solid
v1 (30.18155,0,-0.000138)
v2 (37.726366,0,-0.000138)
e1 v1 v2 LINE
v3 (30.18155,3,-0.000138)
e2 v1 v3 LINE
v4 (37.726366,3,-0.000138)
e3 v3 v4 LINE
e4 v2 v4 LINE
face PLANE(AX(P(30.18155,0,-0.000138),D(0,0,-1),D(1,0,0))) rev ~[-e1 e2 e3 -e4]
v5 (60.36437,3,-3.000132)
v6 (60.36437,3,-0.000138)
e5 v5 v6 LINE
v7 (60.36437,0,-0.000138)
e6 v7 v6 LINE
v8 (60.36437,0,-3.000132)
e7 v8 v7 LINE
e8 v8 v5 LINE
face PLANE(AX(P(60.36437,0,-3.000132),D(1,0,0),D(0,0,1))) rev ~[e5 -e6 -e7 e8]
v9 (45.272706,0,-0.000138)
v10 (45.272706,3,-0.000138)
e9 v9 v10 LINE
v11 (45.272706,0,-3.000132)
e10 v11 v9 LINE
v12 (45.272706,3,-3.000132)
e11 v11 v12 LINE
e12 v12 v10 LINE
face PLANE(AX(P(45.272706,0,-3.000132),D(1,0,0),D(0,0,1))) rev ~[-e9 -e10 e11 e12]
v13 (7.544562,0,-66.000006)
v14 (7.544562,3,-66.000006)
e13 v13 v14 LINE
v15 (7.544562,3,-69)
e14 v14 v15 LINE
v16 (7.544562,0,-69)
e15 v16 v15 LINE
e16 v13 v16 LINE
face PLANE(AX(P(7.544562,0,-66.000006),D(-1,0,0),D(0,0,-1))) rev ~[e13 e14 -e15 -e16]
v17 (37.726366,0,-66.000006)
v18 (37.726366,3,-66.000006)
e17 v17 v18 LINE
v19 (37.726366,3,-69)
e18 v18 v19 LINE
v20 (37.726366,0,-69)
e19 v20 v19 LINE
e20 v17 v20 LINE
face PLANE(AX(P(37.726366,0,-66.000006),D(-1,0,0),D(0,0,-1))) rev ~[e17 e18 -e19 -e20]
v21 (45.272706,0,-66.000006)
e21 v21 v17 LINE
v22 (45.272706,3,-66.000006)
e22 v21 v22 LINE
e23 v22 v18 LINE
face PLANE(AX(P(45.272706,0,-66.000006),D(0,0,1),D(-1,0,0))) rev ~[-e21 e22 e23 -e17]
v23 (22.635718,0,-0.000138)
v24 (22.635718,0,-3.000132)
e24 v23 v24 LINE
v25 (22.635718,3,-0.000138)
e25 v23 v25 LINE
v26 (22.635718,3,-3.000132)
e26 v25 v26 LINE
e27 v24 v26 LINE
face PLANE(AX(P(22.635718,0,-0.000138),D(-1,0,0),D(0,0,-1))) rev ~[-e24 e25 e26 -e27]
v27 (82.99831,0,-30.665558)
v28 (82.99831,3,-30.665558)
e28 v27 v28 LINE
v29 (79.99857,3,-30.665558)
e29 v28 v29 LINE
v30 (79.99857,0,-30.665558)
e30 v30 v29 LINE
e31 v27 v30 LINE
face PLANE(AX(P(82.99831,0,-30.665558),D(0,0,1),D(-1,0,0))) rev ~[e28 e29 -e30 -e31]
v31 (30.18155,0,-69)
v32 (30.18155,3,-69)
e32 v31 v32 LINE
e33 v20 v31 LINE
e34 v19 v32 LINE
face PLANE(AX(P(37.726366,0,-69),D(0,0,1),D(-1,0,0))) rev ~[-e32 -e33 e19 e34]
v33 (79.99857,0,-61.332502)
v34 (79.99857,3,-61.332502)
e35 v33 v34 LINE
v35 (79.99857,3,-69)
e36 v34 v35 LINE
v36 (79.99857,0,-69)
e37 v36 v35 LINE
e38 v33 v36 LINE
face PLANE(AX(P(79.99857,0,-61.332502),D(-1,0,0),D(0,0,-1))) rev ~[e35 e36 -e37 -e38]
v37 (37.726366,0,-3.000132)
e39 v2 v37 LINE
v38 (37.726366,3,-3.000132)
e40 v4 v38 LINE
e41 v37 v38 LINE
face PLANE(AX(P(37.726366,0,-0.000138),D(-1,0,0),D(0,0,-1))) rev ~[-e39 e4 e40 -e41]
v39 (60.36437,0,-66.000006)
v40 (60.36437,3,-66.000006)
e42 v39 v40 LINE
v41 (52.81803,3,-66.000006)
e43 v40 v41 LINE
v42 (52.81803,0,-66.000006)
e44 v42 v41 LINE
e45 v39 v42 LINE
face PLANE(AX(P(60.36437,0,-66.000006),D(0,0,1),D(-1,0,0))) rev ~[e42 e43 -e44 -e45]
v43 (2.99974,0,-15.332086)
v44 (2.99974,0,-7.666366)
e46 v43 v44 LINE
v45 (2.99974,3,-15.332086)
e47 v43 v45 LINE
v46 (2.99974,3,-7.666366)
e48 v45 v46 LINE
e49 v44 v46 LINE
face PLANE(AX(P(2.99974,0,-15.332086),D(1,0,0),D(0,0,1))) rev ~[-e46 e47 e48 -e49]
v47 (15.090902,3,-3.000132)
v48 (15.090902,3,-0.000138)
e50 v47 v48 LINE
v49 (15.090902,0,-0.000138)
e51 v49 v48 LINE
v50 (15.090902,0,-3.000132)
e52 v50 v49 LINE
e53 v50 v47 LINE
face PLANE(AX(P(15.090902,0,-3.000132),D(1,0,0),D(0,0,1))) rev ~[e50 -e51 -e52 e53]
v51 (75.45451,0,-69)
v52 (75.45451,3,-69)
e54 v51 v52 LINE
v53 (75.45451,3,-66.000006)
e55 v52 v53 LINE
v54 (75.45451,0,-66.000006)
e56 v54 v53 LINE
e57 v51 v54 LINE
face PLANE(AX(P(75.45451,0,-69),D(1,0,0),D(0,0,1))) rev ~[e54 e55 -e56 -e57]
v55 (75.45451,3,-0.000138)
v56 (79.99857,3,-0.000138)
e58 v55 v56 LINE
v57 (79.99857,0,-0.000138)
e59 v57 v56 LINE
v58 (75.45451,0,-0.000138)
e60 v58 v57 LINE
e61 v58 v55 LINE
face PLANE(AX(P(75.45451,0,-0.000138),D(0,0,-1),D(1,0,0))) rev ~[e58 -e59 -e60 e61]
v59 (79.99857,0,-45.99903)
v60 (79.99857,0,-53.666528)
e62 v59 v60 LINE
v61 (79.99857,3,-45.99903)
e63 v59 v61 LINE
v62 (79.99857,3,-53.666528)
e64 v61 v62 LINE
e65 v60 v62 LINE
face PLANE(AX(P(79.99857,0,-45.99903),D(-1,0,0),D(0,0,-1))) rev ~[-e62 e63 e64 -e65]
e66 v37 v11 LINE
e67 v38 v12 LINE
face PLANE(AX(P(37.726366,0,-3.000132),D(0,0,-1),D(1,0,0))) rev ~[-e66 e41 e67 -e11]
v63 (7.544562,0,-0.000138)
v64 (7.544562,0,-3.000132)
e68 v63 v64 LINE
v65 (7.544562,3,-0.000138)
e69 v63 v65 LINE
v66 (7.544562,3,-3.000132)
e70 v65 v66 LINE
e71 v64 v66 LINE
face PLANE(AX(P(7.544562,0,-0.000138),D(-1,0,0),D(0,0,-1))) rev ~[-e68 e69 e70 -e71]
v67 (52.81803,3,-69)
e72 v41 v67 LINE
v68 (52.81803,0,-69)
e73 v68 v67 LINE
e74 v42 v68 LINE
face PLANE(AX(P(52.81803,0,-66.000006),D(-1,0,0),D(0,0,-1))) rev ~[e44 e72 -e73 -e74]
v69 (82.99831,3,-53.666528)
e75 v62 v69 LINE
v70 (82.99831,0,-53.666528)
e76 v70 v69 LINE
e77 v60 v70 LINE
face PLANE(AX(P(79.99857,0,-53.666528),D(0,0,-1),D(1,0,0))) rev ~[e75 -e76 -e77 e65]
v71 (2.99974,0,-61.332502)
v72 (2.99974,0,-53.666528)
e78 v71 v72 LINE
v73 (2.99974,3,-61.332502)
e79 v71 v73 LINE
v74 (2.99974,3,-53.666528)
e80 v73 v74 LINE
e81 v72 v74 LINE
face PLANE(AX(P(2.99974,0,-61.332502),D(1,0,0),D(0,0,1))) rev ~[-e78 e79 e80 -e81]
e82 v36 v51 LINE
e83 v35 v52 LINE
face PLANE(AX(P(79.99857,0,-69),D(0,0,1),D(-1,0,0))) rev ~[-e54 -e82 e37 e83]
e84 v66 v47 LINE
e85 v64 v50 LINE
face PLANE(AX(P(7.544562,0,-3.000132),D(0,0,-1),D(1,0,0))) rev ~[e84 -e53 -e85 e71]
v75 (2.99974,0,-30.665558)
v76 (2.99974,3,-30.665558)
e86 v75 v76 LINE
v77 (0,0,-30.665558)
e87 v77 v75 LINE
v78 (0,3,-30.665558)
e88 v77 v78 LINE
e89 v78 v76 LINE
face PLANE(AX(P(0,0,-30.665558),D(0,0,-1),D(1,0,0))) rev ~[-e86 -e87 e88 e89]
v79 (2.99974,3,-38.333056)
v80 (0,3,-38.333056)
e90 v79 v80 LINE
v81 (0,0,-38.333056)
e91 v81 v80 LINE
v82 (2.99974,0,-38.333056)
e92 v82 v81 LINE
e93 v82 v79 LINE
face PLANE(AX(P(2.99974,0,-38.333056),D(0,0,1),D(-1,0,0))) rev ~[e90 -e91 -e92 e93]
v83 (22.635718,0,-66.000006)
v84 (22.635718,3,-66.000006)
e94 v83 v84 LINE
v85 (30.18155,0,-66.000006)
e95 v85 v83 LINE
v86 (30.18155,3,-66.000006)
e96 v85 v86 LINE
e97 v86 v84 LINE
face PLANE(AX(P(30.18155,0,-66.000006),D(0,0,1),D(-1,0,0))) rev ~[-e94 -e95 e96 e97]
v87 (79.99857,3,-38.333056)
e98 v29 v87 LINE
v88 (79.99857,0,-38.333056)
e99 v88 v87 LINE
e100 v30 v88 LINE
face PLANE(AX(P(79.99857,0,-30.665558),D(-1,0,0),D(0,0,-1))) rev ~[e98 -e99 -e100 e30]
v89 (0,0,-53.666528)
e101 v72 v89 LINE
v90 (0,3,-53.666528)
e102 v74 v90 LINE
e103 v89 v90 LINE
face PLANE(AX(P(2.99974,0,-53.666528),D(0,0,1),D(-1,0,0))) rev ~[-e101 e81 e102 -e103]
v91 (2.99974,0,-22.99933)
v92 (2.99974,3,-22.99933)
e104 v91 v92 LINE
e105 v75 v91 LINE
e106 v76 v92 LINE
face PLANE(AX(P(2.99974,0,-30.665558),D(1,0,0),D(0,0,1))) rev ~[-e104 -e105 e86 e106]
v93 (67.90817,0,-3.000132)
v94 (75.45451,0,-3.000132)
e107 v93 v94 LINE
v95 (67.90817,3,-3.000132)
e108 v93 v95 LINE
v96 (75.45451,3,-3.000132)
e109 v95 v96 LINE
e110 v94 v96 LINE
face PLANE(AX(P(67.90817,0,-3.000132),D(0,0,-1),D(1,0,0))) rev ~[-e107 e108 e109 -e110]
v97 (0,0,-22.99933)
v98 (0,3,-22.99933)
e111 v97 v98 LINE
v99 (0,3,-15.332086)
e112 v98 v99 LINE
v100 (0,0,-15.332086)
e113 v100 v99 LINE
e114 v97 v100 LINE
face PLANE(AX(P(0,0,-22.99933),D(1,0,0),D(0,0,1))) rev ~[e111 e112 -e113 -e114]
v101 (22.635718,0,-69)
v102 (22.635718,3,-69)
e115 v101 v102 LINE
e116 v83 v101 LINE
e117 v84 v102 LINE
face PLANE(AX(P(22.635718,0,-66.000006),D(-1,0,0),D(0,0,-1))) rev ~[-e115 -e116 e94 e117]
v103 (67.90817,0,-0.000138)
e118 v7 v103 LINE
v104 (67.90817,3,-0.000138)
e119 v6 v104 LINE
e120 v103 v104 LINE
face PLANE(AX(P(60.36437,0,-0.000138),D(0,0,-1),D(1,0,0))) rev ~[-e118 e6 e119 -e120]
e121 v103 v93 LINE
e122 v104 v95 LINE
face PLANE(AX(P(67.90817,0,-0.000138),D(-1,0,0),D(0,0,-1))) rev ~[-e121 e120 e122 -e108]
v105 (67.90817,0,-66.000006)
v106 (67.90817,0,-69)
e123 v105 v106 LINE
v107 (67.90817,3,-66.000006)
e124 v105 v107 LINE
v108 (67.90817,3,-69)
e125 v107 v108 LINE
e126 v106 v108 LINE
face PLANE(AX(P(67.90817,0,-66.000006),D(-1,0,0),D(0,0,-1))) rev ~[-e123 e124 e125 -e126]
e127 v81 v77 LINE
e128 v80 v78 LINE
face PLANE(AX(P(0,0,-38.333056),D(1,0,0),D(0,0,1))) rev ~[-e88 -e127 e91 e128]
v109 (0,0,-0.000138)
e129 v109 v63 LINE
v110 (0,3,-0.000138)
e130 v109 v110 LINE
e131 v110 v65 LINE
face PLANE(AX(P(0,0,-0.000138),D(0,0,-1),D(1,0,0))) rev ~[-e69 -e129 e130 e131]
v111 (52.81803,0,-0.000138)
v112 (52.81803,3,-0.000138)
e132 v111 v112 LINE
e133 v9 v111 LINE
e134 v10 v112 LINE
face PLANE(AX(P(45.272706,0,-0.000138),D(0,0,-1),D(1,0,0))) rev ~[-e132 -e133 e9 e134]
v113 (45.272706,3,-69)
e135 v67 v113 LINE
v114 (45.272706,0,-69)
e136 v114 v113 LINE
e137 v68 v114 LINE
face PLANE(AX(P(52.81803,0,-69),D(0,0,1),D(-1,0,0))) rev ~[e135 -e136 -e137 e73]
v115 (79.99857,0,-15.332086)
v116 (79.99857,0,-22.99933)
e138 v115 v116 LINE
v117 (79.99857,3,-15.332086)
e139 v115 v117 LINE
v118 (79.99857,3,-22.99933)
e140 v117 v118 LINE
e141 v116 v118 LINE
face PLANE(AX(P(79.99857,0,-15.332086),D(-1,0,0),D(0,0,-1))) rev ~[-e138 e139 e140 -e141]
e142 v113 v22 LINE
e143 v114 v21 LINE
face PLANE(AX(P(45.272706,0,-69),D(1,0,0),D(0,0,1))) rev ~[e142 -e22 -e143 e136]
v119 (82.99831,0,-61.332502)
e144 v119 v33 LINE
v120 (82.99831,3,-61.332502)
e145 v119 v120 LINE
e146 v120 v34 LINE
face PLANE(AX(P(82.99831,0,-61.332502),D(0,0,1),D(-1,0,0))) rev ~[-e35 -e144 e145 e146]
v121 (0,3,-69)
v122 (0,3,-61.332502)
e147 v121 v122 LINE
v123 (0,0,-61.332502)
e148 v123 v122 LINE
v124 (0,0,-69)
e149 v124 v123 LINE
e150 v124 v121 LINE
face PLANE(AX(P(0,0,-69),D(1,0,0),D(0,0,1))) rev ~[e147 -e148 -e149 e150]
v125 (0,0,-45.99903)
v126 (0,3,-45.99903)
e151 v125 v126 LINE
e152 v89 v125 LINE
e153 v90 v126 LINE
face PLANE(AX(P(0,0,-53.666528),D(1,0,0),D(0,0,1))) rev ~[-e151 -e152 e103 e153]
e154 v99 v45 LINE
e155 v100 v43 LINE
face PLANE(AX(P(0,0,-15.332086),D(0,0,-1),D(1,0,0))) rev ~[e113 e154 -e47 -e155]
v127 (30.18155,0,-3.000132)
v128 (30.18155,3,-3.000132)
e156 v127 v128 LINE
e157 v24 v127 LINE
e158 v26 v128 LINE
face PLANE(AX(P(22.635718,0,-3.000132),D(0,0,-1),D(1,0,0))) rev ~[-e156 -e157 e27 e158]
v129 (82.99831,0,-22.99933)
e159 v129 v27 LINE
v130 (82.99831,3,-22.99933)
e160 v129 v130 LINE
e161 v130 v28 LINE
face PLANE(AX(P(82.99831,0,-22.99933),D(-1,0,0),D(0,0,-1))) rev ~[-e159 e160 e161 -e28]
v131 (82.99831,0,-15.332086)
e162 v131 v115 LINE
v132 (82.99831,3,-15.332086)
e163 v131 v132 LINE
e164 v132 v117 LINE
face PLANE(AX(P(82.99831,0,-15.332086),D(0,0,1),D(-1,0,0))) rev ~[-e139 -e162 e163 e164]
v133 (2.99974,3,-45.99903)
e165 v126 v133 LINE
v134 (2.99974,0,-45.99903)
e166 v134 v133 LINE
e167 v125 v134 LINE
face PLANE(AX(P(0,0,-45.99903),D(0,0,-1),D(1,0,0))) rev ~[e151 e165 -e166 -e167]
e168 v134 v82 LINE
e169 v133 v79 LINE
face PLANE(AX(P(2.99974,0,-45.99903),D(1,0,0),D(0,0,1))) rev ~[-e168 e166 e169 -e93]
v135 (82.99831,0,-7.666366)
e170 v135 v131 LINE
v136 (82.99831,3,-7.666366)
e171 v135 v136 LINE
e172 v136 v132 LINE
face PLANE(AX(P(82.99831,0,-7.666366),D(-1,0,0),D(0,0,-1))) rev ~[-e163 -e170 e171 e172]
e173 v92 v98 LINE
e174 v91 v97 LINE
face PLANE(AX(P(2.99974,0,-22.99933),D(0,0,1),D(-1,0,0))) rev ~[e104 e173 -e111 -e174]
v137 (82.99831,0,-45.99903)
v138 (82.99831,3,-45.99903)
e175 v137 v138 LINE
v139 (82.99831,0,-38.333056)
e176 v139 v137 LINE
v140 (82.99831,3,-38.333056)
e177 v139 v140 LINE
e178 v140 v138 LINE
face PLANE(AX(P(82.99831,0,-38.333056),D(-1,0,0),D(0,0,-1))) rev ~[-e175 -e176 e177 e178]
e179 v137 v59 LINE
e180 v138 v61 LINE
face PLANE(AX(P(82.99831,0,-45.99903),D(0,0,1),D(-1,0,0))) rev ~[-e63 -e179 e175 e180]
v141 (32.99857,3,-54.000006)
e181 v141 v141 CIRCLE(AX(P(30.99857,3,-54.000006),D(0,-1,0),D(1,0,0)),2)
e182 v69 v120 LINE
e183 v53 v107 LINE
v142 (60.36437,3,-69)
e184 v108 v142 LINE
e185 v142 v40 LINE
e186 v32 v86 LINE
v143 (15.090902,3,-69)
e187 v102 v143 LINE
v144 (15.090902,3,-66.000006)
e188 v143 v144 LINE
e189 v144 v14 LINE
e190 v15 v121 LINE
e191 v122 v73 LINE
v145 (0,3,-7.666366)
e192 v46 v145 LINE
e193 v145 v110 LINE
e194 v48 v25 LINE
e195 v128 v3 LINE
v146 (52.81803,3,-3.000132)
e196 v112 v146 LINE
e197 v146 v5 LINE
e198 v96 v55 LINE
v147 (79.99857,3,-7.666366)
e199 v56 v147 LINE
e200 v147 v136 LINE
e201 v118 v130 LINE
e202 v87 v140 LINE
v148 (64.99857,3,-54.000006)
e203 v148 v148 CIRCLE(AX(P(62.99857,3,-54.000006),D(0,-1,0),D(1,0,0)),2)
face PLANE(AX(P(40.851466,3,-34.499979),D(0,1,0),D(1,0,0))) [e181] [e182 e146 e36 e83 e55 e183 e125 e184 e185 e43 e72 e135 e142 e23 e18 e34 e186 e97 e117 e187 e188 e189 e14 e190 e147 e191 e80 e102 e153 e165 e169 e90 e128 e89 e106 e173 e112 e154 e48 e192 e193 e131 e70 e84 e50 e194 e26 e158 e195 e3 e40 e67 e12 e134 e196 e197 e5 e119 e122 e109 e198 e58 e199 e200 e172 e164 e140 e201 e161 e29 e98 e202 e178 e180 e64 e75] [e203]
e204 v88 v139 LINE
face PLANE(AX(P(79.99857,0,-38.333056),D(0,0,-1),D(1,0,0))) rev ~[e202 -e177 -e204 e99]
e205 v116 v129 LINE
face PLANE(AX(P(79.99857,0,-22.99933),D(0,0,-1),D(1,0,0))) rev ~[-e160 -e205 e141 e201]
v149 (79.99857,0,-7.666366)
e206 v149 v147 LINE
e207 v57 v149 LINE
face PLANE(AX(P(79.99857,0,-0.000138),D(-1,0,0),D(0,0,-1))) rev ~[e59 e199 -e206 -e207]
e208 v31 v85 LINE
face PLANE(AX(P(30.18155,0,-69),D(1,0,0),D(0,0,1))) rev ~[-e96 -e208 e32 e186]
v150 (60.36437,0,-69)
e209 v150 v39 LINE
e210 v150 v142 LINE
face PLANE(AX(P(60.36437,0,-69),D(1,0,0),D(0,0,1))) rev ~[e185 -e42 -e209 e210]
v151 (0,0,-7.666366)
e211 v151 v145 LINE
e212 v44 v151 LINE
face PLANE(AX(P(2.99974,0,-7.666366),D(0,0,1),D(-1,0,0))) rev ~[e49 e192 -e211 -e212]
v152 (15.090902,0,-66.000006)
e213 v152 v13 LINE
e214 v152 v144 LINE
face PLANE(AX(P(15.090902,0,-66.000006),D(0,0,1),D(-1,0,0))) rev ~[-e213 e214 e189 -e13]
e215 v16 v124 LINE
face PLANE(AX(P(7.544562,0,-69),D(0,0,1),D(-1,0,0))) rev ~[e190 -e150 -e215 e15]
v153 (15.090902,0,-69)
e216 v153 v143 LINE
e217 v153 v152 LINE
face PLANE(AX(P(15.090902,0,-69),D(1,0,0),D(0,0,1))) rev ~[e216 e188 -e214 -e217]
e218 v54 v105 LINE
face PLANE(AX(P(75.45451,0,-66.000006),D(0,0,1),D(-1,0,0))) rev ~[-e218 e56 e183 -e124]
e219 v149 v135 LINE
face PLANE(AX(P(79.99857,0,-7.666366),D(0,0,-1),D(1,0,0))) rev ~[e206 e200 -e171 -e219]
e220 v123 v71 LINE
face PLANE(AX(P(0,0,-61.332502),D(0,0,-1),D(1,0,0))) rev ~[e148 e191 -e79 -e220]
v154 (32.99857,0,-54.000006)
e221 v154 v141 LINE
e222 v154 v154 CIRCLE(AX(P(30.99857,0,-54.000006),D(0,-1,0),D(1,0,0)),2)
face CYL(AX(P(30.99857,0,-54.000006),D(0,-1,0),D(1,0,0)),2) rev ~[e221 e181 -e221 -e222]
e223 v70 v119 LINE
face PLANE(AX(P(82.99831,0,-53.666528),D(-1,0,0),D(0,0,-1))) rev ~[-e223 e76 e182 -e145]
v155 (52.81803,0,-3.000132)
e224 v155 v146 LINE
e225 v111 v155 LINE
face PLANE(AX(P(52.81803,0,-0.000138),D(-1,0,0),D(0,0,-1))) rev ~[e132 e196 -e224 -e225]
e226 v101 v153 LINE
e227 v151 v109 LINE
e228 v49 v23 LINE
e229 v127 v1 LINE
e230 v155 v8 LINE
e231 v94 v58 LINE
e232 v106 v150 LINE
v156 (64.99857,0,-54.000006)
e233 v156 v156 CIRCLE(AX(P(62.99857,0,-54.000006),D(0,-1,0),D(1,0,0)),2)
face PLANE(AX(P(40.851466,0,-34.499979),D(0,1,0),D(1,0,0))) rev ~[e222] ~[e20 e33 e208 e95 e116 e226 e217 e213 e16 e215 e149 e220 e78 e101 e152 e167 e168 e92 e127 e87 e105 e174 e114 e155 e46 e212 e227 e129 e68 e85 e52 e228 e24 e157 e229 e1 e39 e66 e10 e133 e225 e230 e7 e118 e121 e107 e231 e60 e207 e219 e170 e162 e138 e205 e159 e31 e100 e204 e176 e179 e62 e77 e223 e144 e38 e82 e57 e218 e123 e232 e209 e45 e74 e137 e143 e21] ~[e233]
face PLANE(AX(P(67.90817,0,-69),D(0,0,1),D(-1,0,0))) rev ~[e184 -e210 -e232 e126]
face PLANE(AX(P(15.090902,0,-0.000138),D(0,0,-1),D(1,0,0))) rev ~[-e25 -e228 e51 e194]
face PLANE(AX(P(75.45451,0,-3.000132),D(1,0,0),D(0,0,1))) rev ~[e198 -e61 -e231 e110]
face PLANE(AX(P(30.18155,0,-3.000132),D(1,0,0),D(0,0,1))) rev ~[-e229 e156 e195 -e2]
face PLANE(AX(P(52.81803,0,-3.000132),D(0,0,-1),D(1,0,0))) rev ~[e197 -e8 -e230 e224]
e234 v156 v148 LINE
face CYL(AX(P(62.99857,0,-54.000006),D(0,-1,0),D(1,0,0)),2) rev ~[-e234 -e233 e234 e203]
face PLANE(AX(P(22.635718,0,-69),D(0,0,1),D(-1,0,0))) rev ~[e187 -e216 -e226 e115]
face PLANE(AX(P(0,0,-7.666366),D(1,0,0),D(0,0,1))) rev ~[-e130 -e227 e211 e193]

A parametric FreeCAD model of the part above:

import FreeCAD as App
import Part
import Sketcher
Q = App.Units.Quantity

doc = App.newDocument("Part")
body = doc.addObject("PartDesign::Body", "Body")

sketch1 = body.newObject("Sketcher::SketchObject", "Sketch")
sketch1.AttachmentSupport = (doc.getObject("XZ_Plane"), [""])
sketch1.MapMode = "FlatFace"
sketch1.addGeometry(Part.LineSegment(App.Vector(0, -0.000138, 0), App.Vector(7.544562, -0.000138, 0)), False)
sketch1.addGeometry(Part.LineSegment(App.Vector(7.544562, -0.000138, 0), App.Vector(7.544562, -3.000132, 0)), False)
sketch1.addGeometry(Part.LineSegment(App.Vector(7.544562, -3.000132, 0), App.Vector(15.090902, -3.000132, 0)), False)
sketch1.addGeometry(Part.LineSegment(App.Vector(15.090902, -3.000132, 0), App.Vector(15.090902, -0.000138, 0)), False)
sketch1.addGeometry(Part.LineSegment(App.Vector(15.090902, -0.000138, 0), App.Vector(22.635718, -0.000138, 0)), False)
sketch1.addGeometry(Part.LineSegment(App.Vector(22.635718, -0.000138, 0), App.Vector(22.635718, -3.000132, 0)), False)
sketch1.addGeometry(Part.LineSegment(App.Vector(22.635718, -3.000132, 0), App.Vector(30.18155, -3.000132, 0)), False)
sketch1.addGeometry(Part.LineSegment(App.Vector(30.18155, -3.000132, 0), App.Vector(30.18155, -0.000138, 0)), False)
sketch1.addGeometry(Part.LineSegment(App.Vector(30.18155, -0.000138, 0), App.Vector(37.726366, -0.000138, 0)), False)
sketch1.addGeometry(Part.LineSegment(App.Vector(37.726366, -0.000138, 0), App.Vector(37.726366, -3.000132, 0)), False)
sketch1.addGeometry(Part.LineSegment(App.Vector(37.726366, -3.000132, 0), App.Vector(45.272706, -3.000132, 0)), False)
sketch1.addGeometry(Part.LineSegment(App.Vector(45.272706, -3.000132, 0), App.Vector(45.272706, -0.000138, 0)), False)
sketch1.addGeometry(Part.LineSegment(App.Vector(45.272706, -0.000138, 0), App.Vector(52.81803, -0.000138, 0)), False)
sketch1.addGeometry(Part.LineSegment(App.Vector(52.81803, -0.000138, 0), App.Vector(52.81803, -3.000132, 0)), False)
sketch1.addGeometry(Part.LineSegment(App.Vector(52.81803, -3.000132, 0), App.Vector(60.36437, -3.000132, 0)), False)
sketch1.addGeometry(Part.LineSegment(App.Vector(60.36437, -3.000132, 0), App.Vector(60.36437, -0.000138, 0)), False)
sketch1.addGeometry(Part.LineSegment(App.Vector(60.36437, -0.000138, 0), App.Vector(67.90817, -0.000138, 0)), False)
sketch1.addGeometry(Part.LineSegment(App.Vector(67.90817, -0.000138, 0), App.Vector(67.90817, -3.000132, 0)), False)
sketch1.addGeometry(Part.LineSegment(App.Vector(67.90817, -3.000132, 0), App.Vector(75.45451, -3.000132, 0)), False)
sketch1.addGeometry(Part.LineSegment(App.Vector(75.45451, -3.000132, 0), App.Vector(75.45451, -0.000138, 0)), False)
sketch1.addGeometry(Part.LineSegment(App.Vector(75.45451, -0.000138, 0), App.Vector(79.99857, -0.000138, 0)), False)
sketch1.addGeometry(Part.LineSegment(App.Vector(79.99857, -0.000138, 0), App.Vector(79.99857, -7.666366, 0)), False)
sketch1.addGeometry(Part.LineSegment(App.Vector(79.99857, -7.666366, 0), App.Vector(82.99831, -7.666366, 0)), False)
sketch1.addGeometry(Part.LineSegment(App.Vector(82.99831, -7.666366, 0), App.Vector(82.99831, -15.332086, 0)), False)
sketch1.addGeometry(Part.LineSegment(App.Vector(82.99831, -15.332086, 0), App.Vector(79.99857, -15.332086, 0)), False)
sketch1.addGeometry(Part.LineSegment(App.Vector(79.99857, -15.332086, 0), App.Vector(79.99857, -22.99933, 0)), False)
sketch1.addGeometry(Part.LineSegment(App.Vector(79.99857, -22.99933, 0), App.Vector(82.99831, -22.99933, 0)), False)
sketch1.addGeometry(Part.LineSegment(App.Vector(82.99831, -22.99933, 0), App.Vector(82.99831, -30.665558, 0)), False)
sketch1.addGeometry(Part.LineSegment(App.Vector(82.99831, -30.665558, 0), App.Vector(79.99857, -30.665558, 0)), False)
sketch1.addGeometry(Part.LineSegment(App.Vector(79.99857, -30.665558, 0), App.Vector(79.99857, -38.333056, 0)), False)
sketch1.addGeometry(Part.LineSegment(App.Vector(79.99857, -38.333056, 0), App.Vector(82.99831, -38.333056, 0)), False)
sketch1.addGeometry(Part.LineSegment(App.Vector(82.99831, -38.333056, 0), App.Vector(82.99831, -45.99903, 0)), False)
sketch1.addGeometry(Part.LineSegment(App.Vector(82.99831, -45.99903, 0), App.Vector(79.99857, -45.99903, 0)), False)
sketch1.addGeometry(Part.LineSegment(App.Vector(79.99857, -45.99903, 0), App.Vector(79.99857, -53.666528, 0)), False)
sketch1.addGeometry(Part.LineSegment(App.Vector(79.99857, -53.666528, 0), App.Vector(82.99831, -53.666528, 0)), False)
sketch1.addGeometry(Part.LineSegment(App.Vector(82.99831, -53.666528, 0), App.Vector(82.99831, -61.332502, 0)), False)
sketch1.addGeometry(Part.LineSegment(App.Vector(82.99831, -61.332502, 0), App.Vector(79.99857, -61.332502, 0)), False)
sketch1.addGeometry(Part.LineSegment(App.Vector(79.99857, -61.332502, 0), App.Vector(79.99857, -69, 0)), False)
sketch1.addGeometry(Part.LineSegment(App.Vector(79.99857, -69, 0), App.Vector(75.45451, -69, 0)), False)
sketch1.addGeometry(Part.LineSegment(App.Vector(75.45451, -69, 0), App.Vector(75.45451, -66.000006, 0)), False)
sketch1.addGeometry(Part.LineSegment(App.Vector(75.45451, -66.000006, 0), App.Vector(67.90817, -66.000006, 0)), False)
sketch1.addGeometry(Part.LineSegment(App.Vector(67.90817, -66.000006, 0), App.Vector(67.90817, -69, 0)), False)
sketch1.addGeometry(Part.LineSegment(App.Vector(67.90817, -69, 0), App.Vector(60.36437, -69, 0)), False)
sketch1.addGeometry(Part.LineSegment(App.Vector(60.36437, -69, 0), App.Vector(60.36437, -66.000006, 0)), False)
sketch1.addGeometry(Part.LineSegment(App.Vector(60.36437, -66.000006, 0), App.Vector(52.81803, -66.000006, 0)), False)
sketch1.addGeometry(Part.LineSegment(App.Vector(52.81803, -66.000006, 0), App.Vector(52.81803, -69, 0)), False)
sketch1.addGeometry(Part.LineSegment(App.Vector(52.81803, -69, 0), App.Vector(45.272706, -69, 0)), False)
sketch1.addGeometry(Part.LineSegment(App.Vector(45.272706, -69, 0), App.Vector(45.272706, -66.000006, 0)), False)
sketch1.addGeometry(Part.LineSegment(App.Vector(45.272706, -66.000006, 0), App.Vector(37.726366, -66.000006, 0)), False)
sketch1.addGeometry(Part.LineSegment(App.Vector(37.726366, -66.000006, 0), App.Vector(37.726366, -69, 0)), False)
sketch1.addGeometry(Part.LineSegment(App.Vector(37.726366, -69, 0), App.Vector(30.18155, -69, 0)), False)
sketch1.addGeometry(Part.LineSegment(App.Vector(30.18155, -69, 0), App.Vector(30.18155, -66.000006, 0)), False)
sketch1.addGeometry(Part.LineSegment(App.Vector(30.18155, -66.000006, 0), App.Vector(22.635718, -66.000006, 0)), False)
sketch1.addGeometry(Part.LineSegment(App.Vector(22.635718, -66.000006, 0), App.Vector(22.635718, -69, 0)), False)
sketch1.addGeometry(Part.LineSegment(App.Vector(22.635718, -69, 0), App.Vector(15.090902, -69, 0)), False)
sketch1.addGeometry(Part.LineSegment(App.Vector(15.090902, -69, 0), App.Vector(15.090902, -66.000006, 0)), False)
sketch1.addGeometry(Part.LineSegment(App.Vector(15.090902, -66.000006, 0), App.Vector(7.544562, -66.000006, 0)), False)
sketch1.addGeometry(Part.LineSegment(App.Vector(7.544562, -66.000006, 0), App.Vector(7.544562, -69, 0)), False)
sketch1.addGeometry(Part.LineSegment(App.Vector(7.544562, -69, 0), App.Vector(0, -69, 0)), False)
sketch1.addGeometry(Part.LineSegment(App.Vector(0, -69, 0), App.Vector(0, -61.332502, 0)), False)
sketch1.addGeometry(Part.LineSegment(App.Vector(0, -61.332502, 0), App.Vector(2.99974, -61.332502, 0)), False)
sketch1.addGeometry(Part.LineSegment(App.Vector(2.99974, -61.332502, 0), App.Vector(2.99974, -53.666528, 0)), False)
sketch1.addGeometry(Part.LineSegment(App.Vector(2.99974, -53.666528, 0), App.Vector(0, -53.666528, 0)), False)
sketch1.addGeometry(Part.LineSegment(App.Vector(0, -53.666528, 0), App.Vector(0, -45.99903, 0)), False)
sketch1.addGeometry(Part.LineSegment(App.Vector(0, -45.99903, 0), App.Vector(2.99974, -45.99903, 0)), False)
sketch1.addGeometry(Part.LineSegment(App.Vector(2.99974, -45.99903, 0), App.Vector(2.99974, -38.333056, 0)), False)
sketch1.addGeometry(Part.LineSegment(App.Vector(2.99974, -38.333056, 0), App.Vector(0, -38.333056, 0)), False)
sketch1.addGeometry(Part.LineSegment(App.Vector(0, -38.333056, 0), App.Vector(0, -30.665558, 0)), False)
sketch1.addGeometry(Part.LineSegment(App.Vector(0, -30.665558, 0), App.Vector(2.99974, -30.665558, 0)), False)
sketch1.addGeometry(Part.LineSegment(App.Vector(2.99974, -30.665558, 0), App.Vector(2.99974, -22.99933, 0)), False)
sketch1.addGeometry(Part.LineSegment(App.Vector(2.99974, -22.99933, 0), App.Vector(0, -22.99933, 0)), False)
sketch1.addGeometry(Part.LineSegment(App.Vector(0, -22.99933, 0), App.Vector(0, -15.332086, 0)), False)
sketch1.addGeometry(Part.LineSegment(App.Vector(0, -15.332086, 0), App.Vector(2.99974, -15.332086, 0)), False)
sketch1.addGeometry(Part.LineSegment(App.Vector(2.99974, -15.332086, 0), App.Vector(2.99974, -7.666366, 0)), False)
sketch1.addGeometry(Part.LineSegment(App.Vector(2.99974, -7.666366, 0), App.Vector(0, -7.666366, 0)), False)
sketch1.addGeometry(Part.LineSegment(App.Vector(0, -7.666366, 0), App.Vector(0, -0.000138, 0)), False)
sketch1.addConstraint(Sketcher.Constraint("Coincident", 0, 2, 1, 1))
sketch1.addConstraint(Sketcher.Constraint("Coincident", 1, 2, 2, 1))
sketch1.addConstraint(Sketcher.Constraint("Coincident", 2, 2, 3, 1))
sketch1.addConstraint(Sketcher.Constraint("Coincident", 3, 2, 4, 1))
sketch1.addConstraint(Sketcher.Constraint("Coincident", 4, 2, 5, 1))
sketch1.addConstraint(Sketcher.Constraint("Coincident", 5, 2, 6, 1))
sketch1.addConstraint(Sketcher.Constraint("Coincident", 6, 2, 7, 1))
sketch1.addConstraint(Sketcher.Constraint("Coincident", 7, 2, 8, 1))
sketch1.addConstraint(Sketcher.Constraint("Coincident", 8, 2, 9, 1))
sketch1.addConstraint(Sketcher.Constraint("Coincident", 9, 2, 10, 1))
sketch1.addConstraint(Sketcher.Constraint("Coincident", 10, 2, 11, 1))
sketch1.addConstraint(Sketcher.Constraint("Coincident", 11, 2, 12, 1))
sketch1.addConstraint(Sketcher.Constraint("Coincident", 12, 2, 13, 1))
sketch1.addConstraint(Sketcher.Constraint("Coincident", 13, 2, 14, 1))
sketch1.addConstraint(Sketcher.Constraint("Coincident", 14, 2, 15, 1))
sketch1.addConstraint(Sketcher.Constraint("Coincident", 15, 2, 16, 1))
sketch1.addConstraint(Sketcher.Constraint("Coincident", 16, 2, 17, 1))
sketch1.addConstraint(Sketcher.Constraint("Coincident", 17, 2, 18, 1))
sketch1.addConstraint(Sketcher.Constraint("Coincident", 18, 2, 19, 1))
sketch1.addConstraint(Sketcher.Constraint("Coincident", 19, 2, 20, 1))
sketch1.addConstraint(Sketcher.Constraint("Coincident", 20, 2, 21, 1))
sketch1.addConstraint(Sketcher.Constraint("Coincident", 21, 2, 22, 1))
sketch1.addConstraint(Sketcher.Constraint("Coincident", 22, 2, 23, 1))
sketch1.addConstraint(Sketcher.Constraint("Coincident", 23, 2, 24, 1))
sketch1.addConstraint(Sketcher.Constraint("Coincident", 24, 2, 25, 1))
sketch1.addConstraint(Sketcher.Constraint("Coincident", 25, 2, 26, 1))
sketch1.addConstraint(Sketcher.Constraint("Coincident", 26, 2, 27, 1))
sketch1.addConstraint(Sketcher.Constraint("Coincident", 27, 2, 28, 1))
sketch1.addConstraint(Sketcher.Constraint("Coincident", 28, 2, 29, 1))
sketch1.addConstraint(Sketcher.Constraint("Coincident", 29, 2, 30, 1))
sketch1.addConstraint(Sketcher.Constraint("Coincident", 30, 2, 31, 1))
sketch1.addConstraint(Sketcher.Constraint("Coincident", 31, 2, 32, 1))
sketch1.addConstraint(Sketcher.Constraint("Coincident", 32, 2, 33, 1))
sketch1.addConstraint(Sketcher.Constraint("Coincident", 33, 2, 34, 1))
sketch1.addConstraint(Sketcher.Constraint("Coincident", 34, 2, 35, 1))
sketch1.addConstraint(Sketcher.Constraint("Coincident", 35, 2, 36, 1))
sketch1.addConstraint(Sketcher.Constraint("Coincident", 36, 2, 37, 1))
sketch1.addConstraint(Sketcher.Constraint("Coincident", 37, 2, 38, 1))
sketch1.addConstraint(Sketcher.Constraint("Coincident", 38, 2, 39, 1))
sketch1.addConstraint(Sketcher.Constraint("Coincident", 39, 2, 40, 1))
sketch1.addConstraint(Sketcher.Constraint("Coincident", 40, 2, 41, 1))
sketch1.addConstraint(Sketcher.Constraint("Coincident", 41, 2, 42, 1))
sketch1.addConstraint(Sketcher.Constraint("Coincident", 42, 2, 43, 1))
sketch1.addConstraint(Sketcher.Constraint("Coincident", 43, 2, 44, 1))
sketch1.addConstraint(Sketcher.Constraint("Coincident", 44, 2, 45, 1))
sketch1.addConstraint(Sketcher.Constraint("Coincident", 45, 2, 46, 1))
sketch1.addConstraint(Sketcher.Constraint("Coincident", 46, 2, 47, 1))
sketch1.addConstraint(Sketcher.Constraint("Coincident", 47, 2, 48, 1))
sketch1.addConstraint(Sketcher.Constraint("Coincident", 48, 2, 49, 1))
sketch1.addConstraint(Sketcher.Constraint("Coincident", 49, 2, 50, 1))
sketch1.addConstraint(Sketcher.Constraint("Coincident", 50, 2, 51, 1))
sketch1.addConstraint(Sketcher.Constraint("Coincident", 51, 2, 52, 1))
sketch1.addConstraint(Sketcher.Constraint("Coincident", 52, 2, 53, 1))
sketch1.addConstraint(Sketcher.Constraint("Coincident", 53, 2, 54, 1))
sketch1.addConstraint(Sketcher.Constraint("Coincident", 54, 2, 55, 1))
sketch1.addConstraint(Sketcher.Constraint("Coincident", 55, 2, 56, 1))
sketch1.addConstraint(Sketcher.Constraint("Coincident", 56, 2, 57, 1))
sketch1.addConstraint(Sketcher.Constraint("Coincident", 57, 2, 58, 1))
sketch1.addConstraint(Sketcher.Constraint("Coincident", 58, 2, 59, 1))
sketch1.addConstraint(Sketcher.Constraint("Coincident", 59, 2, 60, 1))
sketch1.addConstraint(Sketcher.Constraint("Coincident", 60, 2, 61, 1))
sketch1.addConstraint(Sketcher.Constraint("Coincident", 61, 2, 62, 1))
sketch1.addConstraint(Sketcher.Constraint("Coincident", 62, 2, 63, 1))
sketch1.addConstraint(Sketcher.Constraint("Coincident", 63, 2, 64, 1))
sketch1.addConstraint(Sketcher.Constraint("Coincident", 64, 2, 65, 1))
sketch1.addConstraint(Sketcher.Constraint("Coincident", 65, 2, 66, 1))
sketch1.addConstraint(Sketcher.Constraint("Coincident", 66, 2, 67, 1))
sketch1.addConstraint(Sketcher.Constraint("Coincident", 67, 2, 68, 1))
sketch1.addConstraint(Sketcher.Constraint("Coincident", 68, 2, 69, 1))
sketch1.addConstraint(Sketcher.Constraint("Coincident", 69, 2, 70, 1))
sketch1.addConstraint(Sketcher.Constraint("Coincident", 70, 2, 71, 1))
sketch1.addConstraint(Sketcher.Constraint("Coincident", 71, 2, 72, 1))
sketch1.addConstraint(Sketcher.Constraint("Coincident", 72, 2, 73, 1))
sketch1.addConstraint(Sketcher.Constraint("Coincident", 73, 2, 74, 1))
sketch1.addConstraint(Sketcher.Constraint("Coincident", 74, 2, 75, 1))
sketch1.addConstraint(Sketcher.Constraint("Coincident", 75, 2, 0, 1))
sketch1.addConstraint(Sketcher.Constraint("Horizontal", 0))
sketch1.addConstraint(Sketcher.Constraint("Vertical", 1))
sketch1.addConstraint(Sketcher.Constraint("Horizontal", 2))
sketch1.addConstraint(Sketcher.Constraint("Vertical", 3))
sketch1.addConstraint(Sketcher.Constraint("Horizontal", 4))
sketch1.addConstraint(Sketcher.Constraint("Vertical", 5))
sketch1.addConstraint(Sketcher.Constraint("Horizontal", 6))
sketch1.addConstraint(Sketcher.Constraint("Vertical", 7))
sketch1.addConstraint(Sketcher.Constraint("Horizontal", 8))
sketch1.addConstraint(Sketcher.Constraint("Vertical", 9))
sketch1.addConstraint(Sketcher.Constraint("Horizontal", 10))
sketch1.addConstraint(Sketcher.Constraint("Vertical", 11))
sketch1.addConstraint(Sketcher.Constraint("Horizontal", 12))
sketch1.addConstraint(Sketcher.Constraint("Vertical", 13))
sketch1.addConstraint(Sketcher.Constraint("Horizontal", 14))
sketch1.addConstraint(Sketcher.Constraint("Vertical", 15))
sketch1.addConstraint(Sketcher.Constraint("Horizontal", 16))
sketch1.addConstraint(Sketcher.Constraint("Vertical", 17))
sketch1.addConstraint(Sketcher.Constraint("Horizontal", 18))
sketch1.addConstraint(Sketcher.Constraint("Vertical", 19))
sketch1.addConstraint(Sketcher.Constraint("Horizontal", 20))
sketch1.addConstraint(Sketcher.Constraint("Vertical", 21))
sketch1.addConstraint(Sketcher.Constraint("Horizontal", 22))
sketch1.addConstraint(Sketcher.Constraint("Vertical", 23))
sketch1.addConstraint(Sketcher.Constraint("Horizontal", 24))
sketch1.addConstraint(Sketcher.Constraint("Vertical", 25))
sketch1.addConstraint(Sketcher.Constraint("Horizontal", 26))
sketch1.addConstraint(Sketcher.Constraint("Vertical", 27))
sketch1.addConstraint(Sketcher.Constraint("Horizontal", 28))
sketch1.addConstraint(Sketcher.Constraint("Vertical", 29))
sketch1.addConstraint(Sketcher.Constraint("Horizontal", 30))
sketch1.addConstraint(Sketcher.Constraint("Vertical", 31))
sketch1.addConstraint(Sketcher.Constraint("Horizontal", 32))
sketch1.addConstraint(Sketcher.Constraint("Vertical", 33))
sketch1.addConstraint(Sketcher.Constraint("Horizontal", 34))
sketch1.addConstraint(Sketcher.Constraint("Vertical", 35))
sketch1.addConstraint(Sketcher.Constraint("Horizontal", 36))
sketch1.addConstraint(Sketcher.Constraint("Vertical", 37))
sketch1.addConstraint(Sketcher.Constraint("Horizontal", 38))
sketch1.addConstraint(Sketcher.Constraint("Vertical", 39))
sketch1.addConstraint(Sketcher.Constraint("Horizontal", 40))
sketch1.addConstraint(Sketcher.Constraint("Vertical", 41))
sketch1.addConstraint(Sketcher.Constraint("Horizontal", 42))
sketch1.addConstraint(Sketcher.Constraint("Vertical", 43))
sketch1.addConstraint(Sketcher.Constraint("Horizontal", 44))
sketch1.addConstraint(Sketcher.Constraint("Vertical", 45))
sketch1.addConstraint(Sketcher.Constraint("Horizontal", 46))
sketch1.addConstraint(Sketcher.Constraint("Vertical", 47))
sketch1.addConstraint(Sketcher.Constraint("Horizontal", 48))
sketch1.addConstraint(Sketcher.Constraint("Vertical", 49))
sketch1.addConstraint(Sketcher.Constraint("Horizontal", 50))
sketch1.addConstraint(Sketcher.Constraint("Vertical", 51))
sketch1.addConstraint(Sketcher.Constraint("Horizontal", 52))
sketch1.addConstraint(Sketcher.Constraint("Vertical", 53))
sketch1.addConstraint(Sketcher.Constraint("Horizontal", 54))
sketch1.addConstraint(Sketcher.Constraint("Vertical", 55))
sketch1.addConstraint(Sketcher.Constraint("Horizontal", 56))
sketch1.addConstraint(Sketcher.Constraint("Vertical", 57))
sketch1.addConstraint(Sketcher.Constraint("Horizontal", 58))
sketch1.addConstraint(Sketcher.Constraint("Vertical", 59))
sketch1.addConstraint(Sketcher.Constraint("Horizontal", 60))
sketch1.addConstraint(Sketcher.Constraint("Vertical", 61))
sketch1.addConstraint(Sketcher.Constraint("Horizontal", 62))
sketch1.addConstraint(Sketcher.Constraint("Vertical", 63))
sketch1.addConstraint(Sketcher.Constraint("Horizontal", 64))
sketch1.addConstraint(Sketcher.Constraint("Vertical", 65))
sketch1.addConstraint(Sketcher.Constraint("Horizontal", 66))
sketch1.addConstraint(Sketcher.Constraint("Vertical", 67))
sketch1.addConstraint(Sketcher.Constraint("Horizontal", 68))
sketch1.addConstraint(Sketcher.Constraint("Vertical", 69))
sketch1.addConstraint(Sketcher.Constraint("Horizontal", 70))
sketch1.addConstraint(Sketcher.Constraint("Vertical", 71))
sketch1.addConstraint(Sketcher.Constraint("Horizontal", 72))
sketch1.addConstraint(Sketcher.Constraint("Vertical", 73))
sketch1.addConstraint(Sketcher.Constraint("Horizontal", 74))
sketch1.addConstraint(Sketcher.Constraint("Vertical", 75))
sketch1.addConstraint(Sketcher.Constraint("PointOnObject", 58, 2, -2))
sketch1.addConstraint(Sketcher.Constraint("PointOnObject", 62, 2, -2))
sketch1.addConstraint(Sketcher.Constraint("PointOnObject", 66, 2, -2))
sketch1.addConstraint(Sketcher.Constraint("PointOnObject", 70, 2, -2))
sketch1.addConstraint(Sketcher.Constraint("PointOnObject", 74, 2, -2))
sketch1.addConstraint(Sketcher.Constraint("Horizontal", 0, 2, 3, 2))
sketch1.addConstraint(Sketcher.Constraint("Horizontal", 2, 2, 5, 2))
sketch1.addConstraint(Sketcher.Constraint("Horizontal", 4, 2, 7, 2))
sketch1.addConstraint(Sketcher.Constraint("Horizontal", 6, 2, 9, 2))
sketch1.addConstraint(Sketcher.Constraint("Horizontal", 8, 2, 11, 2))
sketch1.addConstraint(Sketcher.Constraint("Horizontal", 10, 2, 13, 2))
sketch1.addConstraint(Sketcher.Constraint("Horizontal", 12, 2, 15, 2))
sketch1.addConstraint(Sketcher.Constraint("Horizontal", 14, 2, 17, 2))
sketch1.addConstraint(Sketcher.Constraint("Horizontal", 16, 2, 19, 2))
sketch1.addConstraint(Sketcher.Constraint("Horizontal", 38, 2, 41, 2))
sketch1.addConstraint(Sketcher.Constraint("Horizontal", 40, 2, 43, 2))
sketch1.addConstraint(Sketcher.Constraint("Horizontal", 42, 2, 45, 2))
sketch1.addConstraint(Sketcher.Constraint("Horizontal", 44, 2, 47, 2))
sketch1.addConstraint(Sketcher.Constraint("Horizontal", 46, 2, 49, 2))
sketch1.addConstraint(Sketcher.Constraint("Horizontal", 48, 2, 51, 2))
sketch1.addConstraint(Sketcher.Constraint("Horizontal", 50, 2, 53, 2))
sketch1.addConstraint(Sketcher.Constraint("Horizontal", 52, 2, 55, 2))
sketch1.addConstraint(Sketcher.Constraint("Horizontal", 54, 2, 57, 2))
sketch1.addConstraint(Sketcher.Constraint("Horizontal", 36, 2, 59, 2))
sketch1.addConstraint(Sketcher.Constraint("Horizontal", 34, 2, 61, 2))
sketch1.addConstraint(Sketcher.Constraint("Horizontal", 32, 2, 63, 2))
sketch1.addConstraint(Sketcher.Constraint("Horizontal", 30, 2, 65, 2))
sketch1.addConstraint(Sketcher.Constraint("Horizontal", 28, 2, 67, 2))
sketch1.addConstraint(Sketcher.Constraint("Horizontal", 26, 2, 69, 2))
sketch1.addConstraint(Sketcher.Constraint("Horizontal", 24, 2, 71, 2))
sketch1.addConstraint(Sketcher.Constraint("Horizontal", 22, 2, 73, 2))
sketch1.addConstraint(Sketcher.Constraint("Vertical", 21, 2, 24, 2))
sketch1.addConstraint(Sketcher.Constraint("Vertical", 23, 2, 26, 2))
sketch1.addConstraint(Sketcher.Constraint("Vertical", 25, 2, 28, 2))
sketch1.addConstraint(Sketcher.Constraint("Vertical", 27, 2, 30, 2))
sketch1.addConstraint(Sketcher.Constraint("Vertical", 29, 2, 32, 2))
sketch1.addConstraint(Sketcher.Constraint("Vertical", 31, 2, 34, 2))
sketch1.addConstraint(Sketcher.Constraint("Vertical", 33, 2, 36, 2))
sketch1.addConstraint(Sketcher.Constraint("Vertical", 19, 2, 38, 2))
sketch1.addConstraint(Sketcher.Constraint("Vertical", 17, 2, 40, 2))
sketch1.addConstraint(Sketcher.Constraint("Vertical", 15, 2, 42, 2))
sketch1.addConstraint(Sketcher.Constraint("Vertical", 13, 2, 44, 2))
sketch1.addConstraint(Sketcher.Constraint("Vertical", 11, 2, 46, 2))
sketch1.addConstraint(Sketcher.Constraint("Vertical", 9, 2, 48, 2))
sketch1.addConstraint(Sketcher.Constraint("Vertical", 7, 2, 50, 2))
sketch1.addConstraint(Sketcher.Constraint("Vertical", 5, 2, 52, 2))
sketch1.addConstraint(Sketcher.Constraint("Vertical", 3, 2, 54, 2))
sketch1.addConstraint(Sketcher.Constraint("Vertical", 1, 2, 56, 2))
sketch1.addConstraint(Sketcher.Constraint("Vertical", 61, 2, 64, 2))
sketch1.addConstraint(Sketcher.Constraint("Vertical", 65, 2, 68, 2))
sketch1.addConstraint(Sketcher.Constraint("Vertical", 69, 2, 72, 2))
sketch1.addConstraint(Sketcher.Constraint("Equal", 4, 8))
sketch1.addConstraint(Sketcher.Constraint("Equal", 2, 10))
sketch1.addConstraint(Sketcher.Constraint("Equal", 10, 14))
sketch1.addConstraint(Sketcher.Constraint("Equal", 14, 18))
sketch1.addConstraint(Sketcher.Constraint("Equal", 36, 60))
sketch1.addConstraint(Sketcher.Constraint("Equal", 21, 27))
sketch1.addConstraint(Sketcher.Constraint("Equal", 29, 33))
sketch1.addConstraint(Sketcher.Constraint("Equal", 31, 35))
sketch1.addConstraint(Sketcher.Constraint("Equal", 33, 37))
sketch1.addConstraint(Sketcher.Constraint("Equal", 19, 39))
sketch1.addConstraint(Sketcher.Constraint("DistanceY", 37, 2, -1, 1, Q("69 mm")))
sketch1.addConstraint(Sketcher.Constraint("DistanceX", 16, 1, 16, 2, Q("7.5438 mm")))
sketch1.addConstraint(Sketcher.Constraint("DistanceY", 33, 2, 33, 1, Q("7.667498 mm")))
sketch1.addConstraint(Sketcher.Constraint("DistanceX", 2, 1, 2, 2, Q("7.54634 mm")))
sketch1.addConstraint(Sketcher.Constraint("DistanceX", 20, 1, 20, 2, Q("4.54406 mm")))
sketch1.addConstraint(Sketcher.Constraint("DistanceX", 22, 1, 22, 2, Q("2.99974 mm")))
sketch1.addConstraint(Sketcher.Constraint("DistanceY", 21, 2, 21, 1, Q("7.666228 mm")))
sketch1.addConstraint(Sketcher.Constraint("DistanceY", 23, 2, 23, 1, Q("7.66572 mm")))
sketch1.addConstraint(Sketcher.Constraint("DistanceX", 0, 1, 0, 2, Q("7.544562 mm")))
sketch1.addConstraint(Sketcher.Constraint("DistanceX", 4, 1, 4, 2, Q("7.544816 mm")))
sketch1.addConstraint(Sketcher.Constraint("DistanceX", 6, 1, 6, 2, Q("7.545832 mm")))
sketch1.addConstraint(Sketcher.Constraint("DistanceX", 12, 1, 12, 2, Q("7.545324 mm")))
sketch1.addConstraint(Sketcher.Constraint("DistanceY", 1, 2, 1, 1, Q("2.999994 mm")))
sketch1.addConstraint(Sketcher.Constraint("DistanceY", 25, 2, 25, 1, Q("7.667244 mm")))
sketch1.addConstraint(Sketcher.Constraint("DistanceY", 31, 2, 31, 1, Q("7.665974 mm")))
pad1 = body.newObject("PartDesign::Pad", "Pad")
pad1.Profile = sketch1
pad1.Length = 3
pad1.Reversed = True

sketch2 = body.newObject("Sketcher::SketchObject", "Sketch001")
sketch2.AttachmentSupport = (doc.getObject("XZ_Plane"), [""])
sketch2.MapMode = "FlatFace"
sketch2.addGeometry(Part.Circle(App.Vector(62.99857, -54.000006, 0), App.Vector(0, 0, 1), 2), False)
sketch2.addGeometry(Part.Circle(App.Vector(30.99857, -54.000006, 0), App.Vector(0, 0, 1), 2), False)
sketch2.addConstraint(Sketcher.Constraint("Equal", 0, 1))
sketch2.addConstraint(Sketcher.Constraint("Horizontal", 0, 3, 1, 3))
sketch2.addConstraint(Sketcher.Constraint("Diameter", 0, Q("4 mm")))
sketch2.addConstraint(Sketcher.Constraint("DistanceX", 1, 3, 0, 3, Q("32 mm")))
sketch2.addConstraint(Sketcher.Constraint("DistanceX", -1, 1, 0, 3, Q("62.99857 mm")))
sketch2.addConstraint(Sketcher.Constraint("DistanceY", 0, 3, -1, 1, Q("54.000006 mm")))
pocket1 = body.newObject("PartDesign::Pocket", "Pocket")
pocket1.Profile = sketch2
pocket1.Length = 3

doc.recompute()
